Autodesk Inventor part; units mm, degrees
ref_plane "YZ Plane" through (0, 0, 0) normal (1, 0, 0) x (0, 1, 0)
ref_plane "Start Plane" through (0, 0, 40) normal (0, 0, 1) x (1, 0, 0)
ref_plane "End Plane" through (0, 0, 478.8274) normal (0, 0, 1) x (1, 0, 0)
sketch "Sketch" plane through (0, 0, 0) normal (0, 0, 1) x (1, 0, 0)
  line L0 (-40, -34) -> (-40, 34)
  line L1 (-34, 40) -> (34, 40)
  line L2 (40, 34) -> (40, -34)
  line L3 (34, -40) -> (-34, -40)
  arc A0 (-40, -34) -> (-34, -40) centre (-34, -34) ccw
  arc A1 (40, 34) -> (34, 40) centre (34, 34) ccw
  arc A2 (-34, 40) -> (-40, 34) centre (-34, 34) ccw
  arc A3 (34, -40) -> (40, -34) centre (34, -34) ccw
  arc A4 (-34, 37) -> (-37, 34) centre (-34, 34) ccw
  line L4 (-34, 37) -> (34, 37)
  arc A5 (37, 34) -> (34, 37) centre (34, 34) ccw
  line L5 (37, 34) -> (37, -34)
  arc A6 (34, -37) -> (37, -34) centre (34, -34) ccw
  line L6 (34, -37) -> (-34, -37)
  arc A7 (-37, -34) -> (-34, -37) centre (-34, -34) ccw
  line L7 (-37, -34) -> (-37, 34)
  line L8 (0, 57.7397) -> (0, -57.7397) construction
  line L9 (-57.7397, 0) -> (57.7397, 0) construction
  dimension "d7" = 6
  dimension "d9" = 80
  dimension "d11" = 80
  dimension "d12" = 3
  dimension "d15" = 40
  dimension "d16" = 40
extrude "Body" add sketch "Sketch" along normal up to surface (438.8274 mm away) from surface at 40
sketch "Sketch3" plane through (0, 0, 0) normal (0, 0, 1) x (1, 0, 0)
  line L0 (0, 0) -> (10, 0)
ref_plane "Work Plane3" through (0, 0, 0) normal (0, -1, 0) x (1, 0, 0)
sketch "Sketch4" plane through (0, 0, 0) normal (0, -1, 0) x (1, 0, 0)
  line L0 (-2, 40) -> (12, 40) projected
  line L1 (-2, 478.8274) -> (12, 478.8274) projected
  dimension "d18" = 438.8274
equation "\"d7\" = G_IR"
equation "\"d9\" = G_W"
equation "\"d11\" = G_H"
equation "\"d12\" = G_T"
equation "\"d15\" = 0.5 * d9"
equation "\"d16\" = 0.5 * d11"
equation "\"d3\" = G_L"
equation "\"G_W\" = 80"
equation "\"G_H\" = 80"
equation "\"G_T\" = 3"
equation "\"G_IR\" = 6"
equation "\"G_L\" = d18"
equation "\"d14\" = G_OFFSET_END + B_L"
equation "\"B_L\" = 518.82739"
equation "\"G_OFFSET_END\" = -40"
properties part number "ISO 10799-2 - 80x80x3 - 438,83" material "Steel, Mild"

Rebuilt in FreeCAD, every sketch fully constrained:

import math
import FreeCAD as App
import Part
import Sketcher

V = App.Vector

doc = App.newDocument("Part")
body = doc.addObject("PartDesign::Body", "Body")

# Sketch on XY plane
sketch1 = body.newObject("Sketcher::SketchObject", "Sketch")
sketch1.AttachmentSupport = (doc.getObject("XY_Plane"), [""])
sketch1.MapMode = "FlatFace"
sketch1.AttachmentOffset = App.Placement(V(0, 0, 40), App.Rotation())
sketch1.addGeometry([
    Part.LineSegment(V(-40, 34, 0), V(-40, -34, 0)),  # 0
    Part.ArcOfCircle(Part.Circle(V(-34, -34, 0), V(0, 0, 1), 6), math.radians(180), math.radians(270)),  # 1
    Part.LineSegment(V(-34, -40, 0), V(34, -40, 0)),  # 2
    Part.ArcOfCircle(Part.Circle(V(34, -34, 0), V(0, 0, 1), 6), math.radians(-90), math.radians(0)),  # 3
    Part.LineSegment(V(40, -34, 0), V(40, 34, 0)),  # 4
    Part.ArcOfCircle(Part.Circle(V(34, 34, 0), V(0, 0, 1), 6), math.radians(0), math.radians(90)),  # 5
    Part.LineSegment(V(34, 40, 0), V(-34, 40, 0)),  # 6
    Part.ArcOfCircle(Part.Circle(V(-34, 34, 0), V(0, 0, 1), 6), math.radians(90), math.radians(180)),  # 7
    Part.ArcOfCircle(Part.Circle(V(-34, 34, 0), V(0, 0, 1), 3), math.radians(90), math.radians(180)),  # 8
    Part.LineSegment(V(-34, 37, 0), V(34, 37, 0)),  # 9
    Part.ArcOfCircle(Part.Circle(V(34, 34, 0), V(0, 0, 1), 3), math.radians(0), math.radians(90)),  # 10
    Part.LineSegment(V(37, 34, 0), V(37, -34, 0)),  # 11
    Part.ArcOfCircle(Part.Circle(V(34, -34, 0), V(0, 0, 1), 3), math.radians(-90), math.radians(0)),  # 12
    Part.LineSegment(V(34, -37, 0), V(-34, -37, 0)),  # 13
    Part.ArcOfCircle(Part.Circle(V(-34, -34, 0), V(0, 0, 1), 3), math.radians(180), math.radians(270)),  # 14
    Part.LineSegment(V(-37, -34, 0), V(-37, 34, 0)),  # 15
], False)
sketch1.addConstraint([
    Sketcher.Constraint("Tangent", 0, 2, 1, 1),
    Sketcher.Constraint("Tangent", 1, 2, 2, 1),
    Sketcher.Constraint("Tangent", 2, 2, 3, 1),
    Sketcher.Constraint("Tangent", 3, 2, 4, 1),
    Sketcher.Constraint("Tangent", 4, 2, 5, 1),
    Sketcher.Constraint("Tangent", 5, 2, 6, 1),
    Sketcher.Constraint("Tangent", 6, 2, 7, 1),
    Sketcher.Constraint("Tangent", 7, 2, 0, 1),
    Sketcher.Constraint("Tangent", 8, 1, 9, 1),
    Sketcher.Constraint("Tangent", 9, 2, 10, 2),
    Sketcher.Constraint("Tangent", 10, 1, 11, 1),
    Sketcher.Constraint("Tangent", 11, 2, 12, 2),
    Sketcher.Constraint("Tangent", 12, 1, 13, 1),
    Sketcher.Constraint("Tangent", 13, 2, 14, 2),
    Sketcher.Constraint("Tangent", 14, 1, 15, 1),
    Sketcher.Constraint("Tangent", 15, 2, 8, 2),
    Sketcher.Constraint("Vertical", 0),
    Sketcher.Constraint("Horizontal", 2),
    Sketcher.Constraint("Vertical", 4),
    Sketcher.Constraint("Horizontal", 6),
    Sketcher.Constraint("Horizontal", 9),
    Sketcher.Constraint("Vertical", 11),
    Sketcher.Constraint("Horizontal", 13),
    Sketcher.Constraint("Vertical", 15),
    Sketcher.Constraint("Coincident", 8, 3, 7, 3),
    Sketcher.Constraint("Coincident", 10, 3, 5, 3),
    Sketcher.Constraint("Coincident", 12, 3, 3, 3),
    Sketcher.Constraint("Equal", 1, 3),
    Sketcher.Constraint("Equal", 3, 5),
    Sketcher.Constraint("Equal", 5, 7),
    Sketcher.Constraint("Equal", 12, 14),
    Sketcher.Constraint("Symmetric", 1, 3, 5, 3, -1, 1),
    Sketcher.Constraint("Equal", 13, 0),
    Sketcher.Constraint("Radius", 1, 6.0),
    Sketcher.Constraint("Radius", 8, 3.0),
    Sketcher.Constraint("DistanceX", 0, 2, -1, 1, 40.0),
])
pad1 = body.newObject("PartDesign::Pad", "Pad")
pad1.Profile = sketch1
pad1.Length = 438.8274

doc.recompute()
